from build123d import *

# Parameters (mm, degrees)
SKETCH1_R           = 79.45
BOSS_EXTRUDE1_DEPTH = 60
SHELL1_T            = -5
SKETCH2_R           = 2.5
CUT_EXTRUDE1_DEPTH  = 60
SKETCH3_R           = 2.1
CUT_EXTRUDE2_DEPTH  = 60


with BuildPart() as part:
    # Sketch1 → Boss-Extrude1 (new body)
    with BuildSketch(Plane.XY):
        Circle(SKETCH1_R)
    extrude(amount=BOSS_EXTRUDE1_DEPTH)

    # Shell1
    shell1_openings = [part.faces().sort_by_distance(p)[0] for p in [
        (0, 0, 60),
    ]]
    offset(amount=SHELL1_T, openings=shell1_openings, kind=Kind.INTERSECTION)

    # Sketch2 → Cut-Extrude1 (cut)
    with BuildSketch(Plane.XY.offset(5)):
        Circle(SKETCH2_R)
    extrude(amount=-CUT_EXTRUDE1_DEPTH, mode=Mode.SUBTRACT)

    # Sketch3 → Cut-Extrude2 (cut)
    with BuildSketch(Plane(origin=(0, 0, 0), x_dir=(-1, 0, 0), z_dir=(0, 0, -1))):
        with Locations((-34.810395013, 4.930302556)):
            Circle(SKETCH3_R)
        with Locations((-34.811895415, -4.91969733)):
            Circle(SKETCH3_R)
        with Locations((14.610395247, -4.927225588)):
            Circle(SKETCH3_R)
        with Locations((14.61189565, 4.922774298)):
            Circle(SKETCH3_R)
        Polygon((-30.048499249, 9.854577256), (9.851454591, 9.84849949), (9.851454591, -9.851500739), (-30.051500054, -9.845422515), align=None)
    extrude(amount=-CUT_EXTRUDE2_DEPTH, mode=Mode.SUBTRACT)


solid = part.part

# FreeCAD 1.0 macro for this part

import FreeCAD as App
import Part
import Sketcher
from FreeCAD import Vector


def faces_at(feature, points):
    """Names of the faces that lie closest to the given points."""
    faces = feature.Shape.Faces
    near = lambda p: min(range(len(faces)), key=lambda i: faces[i].distToShape(Part.Vertex(*p))[0])
    return sorted({f"Face{near(p) + 1}" for p in points})


def add_polygon(sketch, points):
    """Adds a closed chain of lines whose ends are joined by coincident constraints."""
    first, n = sketch.GeometryCount, len(points)
    for a, b in zip(points, points[1:] + points[:1]):
        sketch.addGeometry(Part.LineSegment(App.Vector(*a, 0), App.Vector(*b, 0)), False)
    for i in range(n):
        sketch.addConstraint(Sketcher.Constraint("Coincident", first + i, 2, first + (i + 1) % n, 1))

doc = App.newDocument("Part")
body = doc.addObject("PartDesign::Body", "Body")

sketch1 = body.newObject("Sketcher::SketchObject", "Sketch")
sketch1.AttachmentSupport = (doc.getObject("XY_Plane"), [""])
sketch1.MapMode = "FlatFace"
sketch1.addGeometry(Part.Circle(Vector(0, 0, 0), Vector(0, 0, 1), 79.45), False)
sketch1.addConstraint(Sketcher.Constraint("Coincident", 0, 3, -1, 1))
sketch1.addConstraint(Sketcher.Constraint("Diameter", 0, 158.9))
pad1 = body.newObject("PartDesign::Pad", "Pad")
pad1.Profile = sketch1
pad1.Length = 60
doc.recompute()

thickness = body.newObject("PartDesign::Thickness", "Thickness")
thickness.Base = (pad1, faces_at(pad1, [(0, 0, 60)]))
thickness.Value = 5
thickness.Reversed = True
thickness.Join = "Intersection"

sketch2 = body.newObject("Sketcher::SketchObject", "Sketch001")
sketch2.AttachmentSupport = (doc.getObject("XY_Plane"), [""])
sketch2.MapMode = "FlatFace"
sketch2.AttachmentOffset = App.Placement(Vector(0, 0, 5), App.Rotation())
sketch2.addGeometry(Part.Circle(Vector(0, 0, 0), Vector(0, 0, 1), 2.5), False)
sketch2.addConstraint(Sketcher.Constraint("Coincident", 0, 3, -1, 1))
sketch2.addConstraint(Sketcher.Constraint("Diameter", 0, 5.0))
pocket1 = body.newObject("PartDesign::Pocket", "Pocket")
pocket1.Profile = sketch2
pocket1.Length = 60

sketch3 = body.newObject("Sketcher::SketchObject", "Sketch002")
sketch3.AttachmentSupport = (doc.getObject("XY_Plane"), [""])
sketch3.MapMode = "FlatFace"
sketch3.addGeometry(Part.Circle(Vector(34.810395, 4.930303, 0), Vector(0, 0, 1), 2.1), False)
sketch3.addGeometry(Part.Circle(Vector(34.811895, -4.919697, 0), Vector(0, 0, 1), 2.1), False)
sketch3.addGeometry(Part.Circle(Vector(-14.610395, -4.927226, 0), Vector(0, 0, 1), 2.1), False)
sketch3.addGeometry(Part.Circle(Vector(-14.611896, 4.922774, 0), Vector(0, 0, 1), 2.1), False)
add_polygon(sketch3, [(-9.851455, 9.848499), (30.048499, 9.854577), (30.0515, -9.845423), (-9.851455, -9.851501)])
sketch3.addConstraint(Sketcher.Constraint("Vertical", 7))
sketch3.addConstraint(Sketcher.Constraint("Equal", 0, 1))
sketch3.addConstraint(Sketcher.Constraint("Equal", 1, 2))
sketch3.addConstraint(Sketcher.Constraint("Equal", 2, 3))
sketch3.addConstraint(Sketcher.Constraint("Perpendicular", 4, 5))
sketch3.addConstraint(Sketcher.Constraint("Perpendicular", 5, 6))
sketch3.addConstraint(Sketcher.Constraint("Diameter", 0, 4.2))
sketch3.addConstraint(Sketcher.Constraint("DistanceY", 7, 1, 7, 2, 19.7))
sketch3.addConstraint(Sketcher.Constraint("DistanceY", 1, 3, 0, 3, 9.85))
sketch3.addConstraint(Sketcher.Constraint("DistanceY", 2, 3, 3, 3, 9.85))
sketch3.addConstraint(Sketcher.Constraint("DistanceX", 4, 2, 5, 2, 0.003001))
sketch3.addConstraint(Sketcher.Constraint("DistanceX", -1, 1, 4, 2, 30.048499))
sketch3.addConstraint(Sketcher.Constraint("DistanceY", 6, 2, -1, 1, 9.851501))
sketch3.addConstraint(Sketcher.Constraint("DistanceX", 0, 3, 1, 3, 0.0015))
sketch3.addConstraint(Sketcher.Constraint("DistanceX", 3, 3, 2, 3, 0.0015))
sketch3.addConstraint(Sketcher.Constraint("DistanceX", 2, 3, 1, 3, 49.422291))
sketch3.addConstraint(Sketcher.Constraint("DistanceY", 2, 3, 1, 3, 0.007528))
sketch3.addConstraint(Sketcher.Constraint("DistanceX", 2, 3, 6, 2, 4.758941))
sketch3.addConstraint(Sketcher.Constraint("Distance", 4, 39.899954))
sketch3.addConstraint(Sketcher.Constraint("DistanceY", -1, 1, 0, 3, 4.930303))
pocket2 = body.newObject("PartDesign::Pocket", "Pocket001")
pocket2.Profile = sketch3
pocket2.Length = 60
pocket2.Reversed = True

doc.recompute()
